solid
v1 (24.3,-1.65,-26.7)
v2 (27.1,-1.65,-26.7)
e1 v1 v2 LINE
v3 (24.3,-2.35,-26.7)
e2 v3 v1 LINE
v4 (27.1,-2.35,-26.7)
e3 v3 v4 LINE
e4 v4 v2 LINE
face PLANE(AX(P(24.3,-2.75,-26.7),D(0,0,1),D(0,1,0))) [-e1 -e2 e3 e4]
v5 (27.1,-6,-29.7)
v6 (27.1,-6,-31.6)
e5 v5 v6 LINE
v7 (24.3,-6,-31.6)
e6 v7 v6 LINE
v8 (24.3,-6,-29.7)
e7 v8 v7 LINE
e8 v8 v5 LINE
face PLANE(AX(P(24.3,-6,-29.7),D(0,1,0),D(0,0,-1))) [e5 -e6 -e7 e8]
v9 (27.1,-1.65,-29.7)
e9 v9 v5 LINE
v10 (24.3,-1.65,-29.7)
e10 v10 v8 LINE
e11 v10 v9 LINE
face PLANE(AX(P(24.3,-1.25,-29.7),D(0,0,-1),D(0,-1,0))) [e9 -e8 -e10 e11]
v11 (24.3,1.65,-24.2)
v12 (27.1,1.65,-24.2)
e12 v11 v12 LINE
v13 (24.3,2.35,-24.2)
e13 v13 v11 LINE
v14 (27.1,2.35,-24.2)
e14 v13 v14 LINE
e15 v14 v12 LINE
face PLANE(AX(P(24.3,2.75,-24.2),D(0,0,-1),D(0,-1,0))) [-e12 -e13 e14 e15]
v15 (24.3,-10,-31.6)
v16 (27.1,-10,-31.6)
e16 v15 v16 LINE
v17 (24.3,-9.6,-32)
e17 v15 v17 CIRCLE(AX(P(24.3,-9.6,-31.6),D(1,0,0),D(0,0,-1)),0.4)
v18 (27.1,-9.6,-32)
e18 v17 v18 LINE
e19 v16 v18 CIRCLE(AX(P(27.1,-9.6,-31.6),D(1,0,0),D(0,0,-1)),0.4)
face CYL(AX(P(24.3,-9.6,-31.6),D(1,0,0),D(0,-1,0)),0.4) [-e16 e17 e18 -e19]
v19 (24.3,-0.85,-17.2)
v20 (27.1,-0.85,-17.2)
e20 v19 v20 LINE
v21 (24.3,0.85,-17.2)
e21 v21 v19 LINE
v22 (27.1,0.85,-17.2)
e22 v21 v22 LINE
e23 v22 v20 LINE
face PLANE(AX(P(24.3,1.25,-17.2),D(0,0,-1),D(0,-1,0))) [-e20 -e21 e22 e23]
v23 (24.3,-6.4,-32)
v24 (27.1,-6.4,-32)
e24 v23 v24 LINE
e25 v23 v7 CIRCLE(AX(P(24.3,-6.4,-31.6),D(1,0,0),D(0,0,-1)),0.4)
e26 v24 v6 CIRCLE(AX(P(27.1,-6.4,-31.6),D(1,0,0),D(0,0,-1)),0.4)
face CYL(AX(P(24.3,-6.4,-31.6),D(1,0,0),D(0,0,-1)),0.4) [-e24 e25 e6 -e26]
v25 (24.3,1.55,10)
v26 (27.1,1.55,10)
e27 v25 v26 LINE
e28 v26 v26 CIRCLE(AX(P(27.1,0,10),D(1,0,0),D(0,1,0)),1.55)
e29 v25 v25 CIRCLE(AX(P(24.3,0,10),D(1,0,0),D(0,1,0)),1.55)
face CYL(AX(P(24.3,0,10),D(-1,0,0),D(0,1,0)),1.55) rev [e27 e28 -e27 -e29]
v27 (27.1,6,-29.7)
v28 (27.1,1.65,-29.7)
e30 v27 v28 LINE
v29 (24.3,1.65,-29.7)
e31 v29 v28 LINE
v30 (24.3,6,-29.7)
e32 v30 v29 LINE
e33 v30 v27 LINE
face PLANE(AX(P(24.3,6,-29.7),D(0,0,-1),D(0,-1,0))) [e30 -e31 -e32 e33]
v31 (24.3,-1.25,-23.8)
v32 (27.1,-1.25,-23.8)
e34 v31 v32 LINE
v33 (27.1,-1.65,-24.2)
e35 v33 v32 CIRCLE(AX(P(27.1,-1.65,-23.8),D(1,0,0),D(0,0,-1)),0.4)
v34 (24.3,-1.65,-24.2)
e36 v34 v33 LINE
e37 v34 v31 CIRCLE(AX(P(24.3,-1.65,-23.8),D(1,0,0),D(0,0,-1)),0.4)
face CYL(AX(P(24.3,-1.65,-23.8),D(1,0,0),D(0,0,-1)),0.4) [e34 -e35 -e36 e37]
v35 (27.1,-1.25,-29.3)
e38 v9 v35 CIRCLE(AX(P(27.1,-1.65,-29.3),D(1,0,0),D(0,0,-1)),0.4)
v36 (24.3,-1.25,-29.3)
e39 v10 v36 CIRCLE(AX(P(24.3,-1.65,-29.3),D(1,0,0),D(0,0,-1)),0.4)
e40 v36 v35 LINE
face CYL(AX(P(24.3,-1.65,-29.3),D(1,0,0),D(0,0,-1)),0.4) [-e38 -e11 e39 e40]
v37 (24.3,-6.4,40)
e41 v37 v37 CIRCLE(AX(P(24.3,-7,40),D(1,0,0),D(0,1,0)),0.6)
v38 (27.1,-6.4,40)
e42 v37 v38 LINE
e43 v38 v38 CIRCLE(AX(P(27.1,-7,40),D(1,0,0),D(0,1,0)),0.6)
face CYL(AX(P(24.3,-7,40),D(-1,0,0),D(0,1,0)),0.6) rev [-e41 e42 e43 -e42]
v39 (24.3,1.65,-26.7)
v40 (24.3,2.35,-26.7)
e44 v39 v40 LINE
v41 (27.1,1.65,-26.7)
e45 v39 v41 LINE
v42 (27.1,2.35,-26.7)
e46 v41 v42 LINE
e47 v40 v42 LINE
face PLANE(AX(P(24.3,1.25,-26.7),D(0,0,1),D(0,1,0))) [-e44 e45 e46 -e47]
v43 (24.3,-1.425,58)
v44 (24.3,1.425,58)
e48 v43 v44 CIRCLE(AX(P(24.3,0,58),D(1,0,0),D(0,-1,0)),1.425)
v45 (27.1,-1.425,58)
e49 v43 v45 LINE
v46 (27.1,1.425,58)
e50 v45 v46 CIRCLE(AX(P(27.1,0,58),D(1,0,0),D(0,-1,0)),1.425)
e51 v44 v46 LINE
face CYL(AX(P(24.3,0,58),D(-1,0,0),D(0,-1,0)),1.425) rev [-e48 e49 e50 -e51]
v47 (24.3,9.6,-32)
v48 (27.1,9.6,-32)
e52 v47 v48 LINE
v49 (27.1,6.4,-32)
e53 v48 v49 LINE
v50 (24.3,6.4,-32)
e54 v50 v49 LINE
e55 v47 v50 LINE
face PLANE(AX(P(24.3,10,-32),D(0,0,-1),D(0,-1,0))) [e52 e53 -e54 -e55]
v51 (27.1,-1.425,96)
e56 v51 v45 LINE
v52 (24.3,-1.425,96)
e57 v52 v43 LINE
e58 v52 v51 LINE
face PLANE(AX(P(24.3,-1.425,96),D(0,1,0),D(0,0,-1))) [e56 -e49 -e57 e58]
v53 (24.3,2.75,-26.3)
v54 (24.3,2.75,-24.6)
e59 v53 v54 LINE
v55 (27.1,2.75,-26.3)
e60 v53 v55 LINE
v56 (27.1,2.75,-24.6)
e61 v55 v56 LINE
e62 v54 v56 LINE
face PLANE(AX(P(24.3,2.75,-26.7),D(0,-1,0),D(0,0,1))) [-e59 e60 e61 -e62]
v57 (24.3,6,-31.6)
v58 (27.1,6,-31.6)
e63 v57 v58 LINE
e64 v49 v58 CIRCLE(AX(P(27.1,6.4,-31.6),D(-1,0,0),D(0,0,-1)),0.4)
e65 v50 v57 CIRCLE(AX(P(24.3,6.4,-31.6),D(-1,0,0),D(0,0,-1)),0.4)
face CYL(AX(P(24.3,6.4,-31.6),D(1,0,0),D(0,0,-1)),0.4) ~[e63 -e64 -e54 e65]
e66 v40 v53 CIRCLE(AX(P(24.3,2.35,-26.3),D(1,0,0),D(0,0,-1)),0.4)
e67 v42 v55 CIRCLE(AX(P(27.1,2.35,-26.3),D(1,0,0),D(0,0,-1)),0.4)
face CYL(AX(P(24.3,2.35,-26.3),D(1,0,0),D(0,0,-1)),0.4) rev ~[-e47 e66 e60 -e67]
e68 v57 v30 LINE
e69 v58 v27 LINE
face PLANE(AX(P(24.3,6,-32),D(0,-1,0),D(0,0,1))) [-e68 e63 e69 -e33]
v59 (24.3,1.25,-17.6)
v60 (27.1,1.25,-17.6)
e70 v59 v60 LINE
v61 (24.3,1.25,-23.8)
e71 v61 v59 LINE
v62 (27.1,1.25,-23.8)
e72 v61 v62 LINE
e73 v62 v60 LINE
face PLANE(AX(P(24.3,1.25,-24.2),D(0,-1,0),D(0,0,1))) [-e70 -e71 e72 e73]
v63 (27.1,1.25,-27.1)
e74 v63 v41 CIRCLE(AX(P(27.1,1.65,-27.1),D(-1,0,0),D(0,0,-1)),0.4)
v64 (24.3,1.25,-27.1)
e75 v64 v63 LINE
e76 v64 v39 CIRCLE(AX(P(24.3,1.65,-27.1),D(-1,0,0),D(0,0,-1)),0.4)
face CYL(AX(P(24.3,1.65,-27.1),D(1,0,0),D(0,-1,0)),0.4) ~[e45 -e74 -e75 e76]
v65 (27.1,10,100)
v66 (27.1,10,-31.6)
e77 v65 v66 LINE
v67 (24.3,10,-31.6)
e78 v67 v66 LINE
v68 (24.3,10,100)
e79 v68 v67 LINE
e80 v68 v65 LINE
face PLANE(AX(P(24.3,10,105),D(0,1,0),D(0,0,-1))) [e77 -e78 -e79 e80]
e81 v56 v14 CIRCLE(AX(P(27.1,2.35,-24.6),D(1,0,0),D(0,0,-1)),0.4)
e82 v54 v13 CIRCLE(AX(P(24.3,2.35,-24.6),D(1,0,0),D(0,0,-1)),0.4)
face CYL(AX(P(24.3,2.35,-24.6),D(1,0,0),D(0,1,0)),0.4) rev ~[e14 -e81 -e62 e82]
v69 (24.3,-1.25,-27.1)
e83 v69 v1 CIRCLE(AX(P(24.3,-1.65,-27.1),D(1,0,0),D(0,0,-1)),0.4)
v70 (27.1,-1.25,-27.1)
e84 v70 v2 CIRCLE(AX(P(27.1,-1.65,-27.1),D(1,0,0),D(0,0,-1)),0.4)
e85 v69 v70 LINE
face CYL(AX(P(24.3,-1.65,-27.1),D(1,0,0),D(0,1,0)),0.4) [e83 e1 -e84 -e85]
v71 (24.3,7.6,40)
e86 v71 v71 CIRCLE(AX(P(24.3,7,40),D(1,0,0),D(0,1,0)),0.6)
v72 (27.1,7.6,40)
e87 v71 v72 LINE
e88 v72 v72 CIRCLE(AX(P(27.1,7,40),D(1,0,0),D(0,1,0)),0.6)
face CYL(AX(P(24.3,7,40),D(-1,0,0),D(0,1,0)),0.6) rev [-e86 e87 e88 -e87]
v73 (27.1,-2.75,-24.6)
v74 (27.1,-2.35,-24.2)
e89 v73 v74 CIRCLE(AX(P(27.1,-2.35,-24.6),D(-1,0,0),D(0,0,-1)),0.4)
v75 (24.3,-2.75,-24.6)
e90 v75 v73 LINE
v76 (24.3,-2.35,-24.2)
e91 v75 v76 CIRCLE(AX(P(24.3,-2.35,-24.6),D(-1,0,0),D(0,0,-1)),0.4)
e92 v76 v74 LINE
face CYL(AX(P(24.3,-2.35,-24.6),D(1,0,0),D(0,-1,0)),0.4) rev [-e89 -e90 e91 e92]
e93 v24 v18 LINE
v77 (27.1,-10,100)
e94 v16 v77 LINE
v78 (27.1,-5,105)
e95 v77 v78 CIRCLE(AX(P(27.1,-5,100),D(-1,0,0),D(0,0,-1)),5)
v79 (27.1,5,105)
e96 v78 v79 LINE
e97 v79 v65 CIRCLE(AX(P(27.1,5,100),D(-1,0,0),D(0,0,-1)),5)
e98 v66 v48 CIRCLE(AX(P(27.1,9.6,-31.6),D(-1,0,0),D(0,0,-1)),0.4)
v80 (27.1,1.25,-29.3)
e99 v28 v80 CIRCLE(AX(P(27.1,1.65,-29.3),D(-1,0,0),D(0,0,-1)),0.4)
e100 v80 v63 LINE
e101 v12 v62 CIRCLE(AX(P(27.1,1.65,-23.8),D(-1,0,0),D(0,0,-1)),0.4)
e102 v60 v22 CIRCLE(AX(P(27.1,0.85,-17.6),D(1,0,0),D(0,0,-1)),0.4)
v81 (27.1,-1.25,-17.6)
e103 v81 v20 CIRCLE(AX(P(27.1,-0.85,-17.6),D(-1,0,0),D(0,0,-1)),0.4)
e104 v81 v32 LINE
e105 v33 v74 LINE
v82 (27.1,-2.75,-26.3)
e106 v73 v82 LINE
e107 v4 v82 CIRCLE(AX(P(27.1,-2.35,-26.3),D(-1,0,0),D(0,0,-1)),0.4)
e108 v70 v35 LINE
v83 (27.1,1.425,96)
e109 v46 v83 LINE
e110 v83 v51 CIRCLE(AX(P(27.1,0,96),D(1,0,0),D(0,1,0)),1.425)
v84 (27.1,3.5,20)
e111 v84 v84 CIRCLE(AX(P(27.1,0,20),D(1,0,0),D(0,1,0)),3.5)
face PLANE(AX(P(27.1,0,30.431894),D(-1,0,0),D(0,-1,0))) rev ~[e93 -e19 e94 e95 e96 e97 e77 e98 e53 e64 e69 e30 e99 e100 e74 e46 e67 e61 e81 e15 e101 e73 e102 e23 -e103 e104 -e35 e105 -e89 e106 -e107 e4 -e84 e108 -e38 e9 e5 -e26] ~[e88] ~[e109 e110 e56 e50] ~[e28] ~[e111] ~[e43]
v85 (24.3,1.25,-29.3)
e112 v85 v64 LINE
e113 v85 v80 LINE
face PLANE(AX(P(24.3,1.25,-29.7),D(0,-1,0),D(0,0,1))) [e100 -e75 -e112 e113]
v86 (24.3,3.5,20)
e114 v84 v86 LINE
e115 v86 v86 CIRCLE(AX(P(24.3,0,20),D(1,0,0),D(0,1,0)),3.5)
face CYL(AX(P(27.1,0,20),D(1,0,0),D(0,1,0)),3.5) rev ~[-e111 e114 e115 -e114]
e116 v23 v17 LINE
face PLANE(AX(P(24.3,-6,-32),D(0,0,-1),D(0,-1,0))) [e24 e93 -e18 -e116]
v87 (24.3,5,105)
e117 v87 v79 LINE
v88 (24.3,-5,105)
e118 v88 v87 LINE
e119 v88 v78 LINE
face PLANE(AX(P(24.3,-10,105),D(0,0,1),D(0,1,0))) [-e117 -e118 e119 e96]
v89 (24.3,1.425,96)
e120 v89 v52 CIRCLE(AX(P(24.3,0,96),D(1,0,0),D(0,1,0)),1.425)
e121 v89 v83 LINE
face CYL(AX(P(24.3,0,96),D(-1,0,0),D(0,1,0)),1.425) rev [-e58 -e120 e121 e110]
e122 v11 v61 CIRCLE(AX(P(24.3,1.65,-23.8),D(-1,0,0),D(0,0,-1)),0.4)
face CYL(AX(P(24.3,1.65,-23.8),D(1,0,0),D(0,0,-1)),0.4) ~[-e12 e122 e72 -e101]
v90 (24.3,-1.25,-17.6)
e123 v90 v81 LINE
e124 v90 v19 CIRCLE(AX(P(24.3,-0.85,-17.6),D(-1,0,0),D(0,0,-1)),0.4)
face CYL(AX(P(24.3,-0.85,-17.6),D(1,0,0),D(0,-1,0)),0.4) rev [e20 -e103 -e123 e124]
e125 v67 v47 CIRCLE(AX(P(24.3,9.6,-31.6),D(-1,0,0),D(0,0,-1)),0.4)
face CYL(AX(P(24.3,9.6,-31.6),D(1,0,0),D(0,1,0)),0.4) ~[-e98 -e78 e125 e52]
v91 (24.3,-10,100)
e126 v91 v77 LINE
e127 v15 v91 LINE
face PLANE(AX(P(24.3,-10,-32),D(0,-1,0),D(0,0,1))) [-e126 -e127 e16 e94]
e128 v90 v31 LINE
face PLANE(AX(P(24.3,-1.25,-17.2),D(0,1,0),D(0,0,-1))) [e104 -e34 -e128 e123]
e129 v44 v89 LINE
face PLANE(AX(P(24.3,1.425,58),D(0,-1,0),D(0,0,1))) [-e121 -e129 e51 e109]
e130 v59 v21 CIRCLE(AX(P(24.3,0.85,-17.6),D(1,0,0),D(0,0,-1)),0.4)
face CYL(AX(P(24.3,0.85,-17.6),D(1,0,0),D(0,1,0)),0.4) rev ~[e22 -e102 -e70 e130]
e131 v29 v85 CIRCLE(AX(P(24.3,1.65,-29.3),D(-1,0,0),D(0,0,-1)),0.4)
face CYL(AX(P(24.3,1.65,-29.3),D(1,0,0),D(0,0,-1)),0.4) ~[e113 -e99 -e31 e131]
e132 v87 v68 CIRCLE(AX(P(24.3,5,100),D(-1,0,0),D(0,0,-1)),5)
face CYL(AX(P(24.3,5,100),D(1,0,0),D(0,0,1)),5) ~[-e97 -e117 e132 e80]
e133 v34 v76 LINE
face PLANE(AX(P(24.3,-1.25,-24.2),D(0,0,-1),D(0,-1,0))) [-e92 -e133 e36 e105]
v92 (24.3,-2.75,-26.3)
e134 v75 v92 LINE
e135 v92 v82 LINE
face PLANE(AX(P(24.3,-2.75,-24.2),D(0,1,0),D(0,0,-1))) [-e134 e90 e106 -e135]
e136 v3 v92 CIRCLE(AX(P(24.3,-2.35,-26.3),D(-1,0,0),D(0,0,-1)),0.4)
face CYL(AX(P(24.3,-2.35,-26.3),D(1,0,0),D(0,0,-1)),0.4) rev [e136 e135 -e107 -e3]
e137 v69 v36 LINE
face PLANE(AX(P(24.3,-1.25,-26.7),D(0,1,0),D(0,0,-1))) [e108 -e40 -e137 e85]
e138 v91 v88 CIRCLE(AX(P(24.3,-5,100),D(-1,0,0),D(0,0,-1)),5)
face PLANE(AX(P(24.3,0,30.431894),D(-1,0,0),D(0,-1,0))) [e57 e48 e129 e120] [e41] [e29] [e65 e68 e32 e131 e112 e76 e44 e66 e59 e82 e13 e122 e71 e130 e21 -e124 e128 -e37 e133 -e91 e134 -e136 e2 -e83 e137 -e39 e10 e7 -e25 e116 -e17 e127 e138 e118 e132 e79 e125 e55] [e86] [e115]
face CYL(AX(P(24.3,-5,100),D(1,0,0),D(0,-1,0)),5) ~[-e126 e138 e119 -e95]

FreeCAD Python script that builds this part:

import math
import FreeCAD as App
import Part
import Sketcher
from FreeCAD import Vector
Q = App.Units.Quantity


def edges_at(feature, points):
    """Names of the edges that pass closest to the given points."""
    edges = feature.Shape.Edges
    near = lambda p: min(range(len(edges)), key=lambda i: edges[i].distToShape(Part.Vertex(*p))[0])
    return sorted({f"Edge{near(p) + 1}" for p in points})

doc = App.newDocument("Part")
body = doc.addObject("PartDesign::Body", "Body")

sketch1 = doc.addObject("Sketcher::SketchObject", "Sketch")
body.addObject(sketch1)
sketch1.AttachmentSupport = (doc.YZ_Plane, [""])
sketch1.MapMode = "FlatFace"
sketch1.AttachmentOffset = App.Placement(Vector(0, 0, -24.3), App.Rotation())
sketch1.addGeometry([
    Part.LineSegment(Vector(-10, 85, 0), Vector(10, 85, 0)),
    Part.LineSegment(Vector(10, 85, 0), Vector(10, -52, 0)),
    Part.LineSegment(Vector(10, -52, 0), Vector(6, -52, 0)),
    Part.LineSegment(Vector(6, -52, 0), Vector(6, -49.7, 0)),
    Part.LineSegment(Vector(6, -49.7, 0), Vector(1.2, -49.7, 0)),
    Part.LineSegment(Vector(1.2, -49.7, 0), Vector(1.2, -46.7, 0)),
    Part.LineSegment(Vector(1.2, -46.7, 0), Vector(2.8, -46.7, 0)),
    Part.LineSegment(Vector(2.8, -46.7, 0), Vector(2.8, -44.2, 0)),
    Part.LineSegment(Vector(2.8, -44.2, 0), Vector(1.2, -44.2, 0)),
    Part.LineSegment(Vector(1.2, -44.2, 0), Vector(1.2, -37.2, 0)),
    Part.LineSegment(Vector(1.2, -37.2, 0), Vector(-1.2, -37.2, 0)),
    Part.LineSegment(Vector(-1.2, -37.2, 0), Vector(-1.2, -44.2, 0)),
    Part.LineSegment(Vector(-1.2, -44.2, 0), Vector(-2.8, -44.2, 0)),
    Part.LineSegment(Vector(-2.8, -44.2, 0), Vector(-2.8, -46.7, 0)),
    Part.LineSegment(Vector(-2.8, -46.7, 0), Vector(-1.2, -46.7, 0)),
    Part.LineSegment(Vector(-1.2, -46.7, 0), Vector(-1.2, -49.7, 0)),
    Part.LineSegment(Vector(-1.2, -49.7, 0), Vector(-6, -49.7, 0)),
    Part.LineSegment(Vector(-6, -49.7, 0), Vector(-6, -52, 0)),
    Part.LineSegment(Vector(-6, -52, 0), Vector(-10, -52, 0)),
    Part.LineSegment(Vector(-10, -52, 0), Vector(-10, 85, 0)),
    Part.Circle(Vector(0, -10, 0), Vector(0, 0, 1), 1.6),
    Part.Circle(Vector(-7, 20, 0), Vector(0, 0, 1), 0.6),
    Part.Circle(Vector(7, 20, 0), Vector(0, 0, 1), 0.6),
    Part.LineSegment(Vector(-1.4, 76, 0), Vector(-1.4, 38, 0)),
    Part.ArcOfCircle(Part.Circle(Vector(0, 38, 0), Vector(0, 0, 1), 1.4), math.radians(180), math.radians(360)),
    Part.LineSegment(Vector(1.4, 38, 0), Vector(1.4, 76, 0)),
    Part.ArcOfCircle(Part.Circle(Vector(0, 76, 0), Vector(0, 0, 1), 1.4), math.radians(0), math.radians(180)),
], False)
sketch1.addConstraint([
    Sketcher.Constraint("Coincident", 0, 2, 1, 1),
    Sketcher.Constraint("Coincident", 1, 2, 2, 1),
    Sketcher.Constraint("Coincident", 2, 2, 3, 1),
    Sketcher.Constraint("Coincident", 3, 2, 4, 1),
    Sketcher.Constraint("Coincident", 4, 2, 5, 1),
    Sketcher.Constraint("Coincident", 5, 2, 6, 1),
    Sketcher.Constraint("Coincident", 6, 2, 7, 1),
    Sketcher.Constraint("Coincident", 7, 2, 8, 1),
    Sketcher.Constraint("Coincident", 8, 2, 9, 1),
    Sketcher.Constraint("Coincident", 9, 2, 10, 1),
    Sketcher.Constraint("Coincident", 10, 2, 11, 1),
    Sketcher.Constraint("Coincident", 11, 2, 12, 1),
    Sketcher.Constraint("Coincident", 12, 2, 13, 1),
    Sketcher.Constraint("Coincident", 13, 2, 14, 1),
    Sketcher.Constraint("Coincident", 14, 2, 15, 1),
    Sketcher.Constraint("Coincident", 15, 2, 16, 1),
    Sketcher.Constraint("Coincident", 16, 2, 17, 1),
    Sketcher.Constraint("Coincident", 17, 2, 18, 1),
    Sketcher.Constraint("Coincident", 18, 2, 19, 1),
    Sketcher.Constraint("Coincident", 19, 2, 0, 1),
    Sketcher.Constraint("Tangent", 23, 2, 24, 1),
    Sketcher.Constraint("Tangent", 24, 2, 25, 1),
    Sketcher.Constraint("Tangent", 25, 2, 26, 1),
    Sketcher.Constraint("Tangent", 26, 2, 23, 1),
    Sketcher.Constraint("Horizontal", 0),
    Sketcher.Constraint("Vertical", 1),
    Sketcher.Constraint("Horizontal", 2),
    Sketcher.Constraint("Vertical", 3),
    Sketcher.Constraint("Horizontal", 4),
    Sketcher.Constraint("Vertical", 5),
    Sketcher.Constraint("Horizontal", 6),
    Sketcher.Constraint("Vertical", 7),
    Sketcher.Constraint("Horizontal", 8),
    Sketcher.Constraint("Vertical", 9),
    Sketcher.Constraint("Horizontal", 10),
    Sketcher.Constraint("Vertical", 11),
    Sketcher.Constraint("Horizontal", 12),
    Sketcher.Constraint("Vertical", 13),
    Sketcher.Constraint("Horizontal", 14),
    Sketcher.Constraint("Vertical", 15),
    Sketcher.Constraint("Horizontal", 16),
    Sketcher.Constraint("Vertical", 17),
    Sketcher.Constraint("Horizontal", 18),
    Sketcher.Constraint("Vertical", 19),
    Sketcher.Constraint("Vertical", 23),
    Sketcher.Constraint("Vertical", 25),
    Sketcher.Constraint("Equal", 21, 22),
    Sketcher.Constraint("Symmetric", 21, 3, 22, 3, -2),
    Sketcher.Constraint("Symmetric", 8, 2, 11, 2, -2),
    Sketcher.Constraint("Symmetric", 6, 2, 13, 2, -2),
    Sketcher.Constraint("Symmetric", 4, 2, 15, 2, -2),
    Sketcher.Constraint("Symmetric", 2, 2, 17, 2, -2),
    Sketcher.Constraint("PointOnObject", 20, 3, -2),
    Sketcher.Constraint("PointOnObject", 24, 3, -2),
    Sketcher.Constraint("Vertical", 5, 2, 8, 2),
    Sketcher.Constraint("Equal", 2, 18),
    Sketcher.Constraint("Equal", 10, 7),
    Sketcher.Constraint("Diameter", 20, Q("3.1 mm")),
    Sketcher.Constraint("Diameter", 21, Q("1.2 mm")),
    Sketcher.Constraint("DistanceX", 0, 1, 0, 2, Q("20 mm")),
    Sketcher.Constraint("DistanceX", 2, 2, 2, 1, Q("4 mm")),
    Sketcher.Constraint("DistanceY", 1, 2, 1, 1, Q("137 mm")),
    Sketcher.Constraint("DistanceY", 5, 1, 5, 2, Q("3 mm")),
    Sketcher.Constraint("DistanceY", 9, 1, 9, 2, Q("7 mm")),
    Sketcher.Constraint("DistanceY", 23, 2, 23, 1, Q("38 mm")),
    Sketcher.Constraint("DistanceX", 6, 1, 6, 2, Q("1.5 mm")),
    Sketcher.Constraint("DistanceX", 10, 2, 10, 1, Q("2.5 mm")),
    Sketcher.Constraint("DistanceY", 3, 1, 3, 2, Q("2.3 mm")),
    Sketcher.Constraint("DistanceY", 20, 3, -1, 1, Q("10 mm")),
    Sketcher.Constraint("DistanceX", 21, 3, -1, 1, Q("7 mm")),
    Sketcher.Constraint("DistanceY", -1, 1, 21, 3, Q("20 mm")),
    Sketcher.Constraint("DistanceY", -1, 1, 24, 3, Q("38 mm")),
    Sketcher.Constraint("DistanceY", -1, 1, 0, 2, Q("85 mm")),
    Sketcher.Constraint("Radius", 24, Q("1.425 mm")),
])
pad1 = doc.addObject("PartDesign::Pad", "Pad")
body.addObject(pad1)
pad1.Profile = sketch1
pad1.Length = 2.8
pad1.Reversed = True
doc.recompute()

fillet = doc.addObject("PartDesign::Fillet", "Fillet")
body.addObject(fillet)
fillet.Base = (pad1, edges_at(pad1, [
    (-25.7, 10, -52),
    (-25.7, 6, -52),
    (-25.7, -10, -52),
    (-25.7, -6, -52),
    (-25.7, 1.25, -49.7),
    (-25.7, -1.25, -49.7),
    (-25.7, 1.25, -37.2),
    (-25.7, -1.25, -37.2),
    (-25.7, 1.25, -46.7),
    (-25.7, -1.25, -46.7),
    (-25.7, 1.25, -44.2),
    (-25.7, -1.25, -44.2),
    (-25.7, -2.75, -46.7),
    (-25.7, 2.75, -46.7),
    (-25.7, 2.75, -44.2),
    (-25.7, -2.75, -44.2),
]))
fillet.Radius = 0.4
doc.recompute()

fillet2 = doc.addObject("PartDesign::Fillet", "Fillet001")
body.addObject(fillet2)
fillet2.Base = (fillet, edges_at(fillet, [(-25.7, 10, 85), (-25.7, -10, 85)]))
fillet2.Radius = 5

sketch2 = doc.addObject("Sketcher::SketchObject", "Sketch001")
body.addObject(sketch2)
sketch2.AttachmentSupport = (doc.YZ_Plane, [""])
sketch2.MapMode = "FlatFace"
sketch2.AttachmentOffset = App.Placement(Vector(0, 0, -27.1), App.Rotation())
sketch2.addGeometry(Part.Circle(Vector(0, 0, 0), Vector(0, 0, 1), 3.5), False)
sketch2.addConstraint([
    Sketcher.Constraint("Coincident", 0, 3, -1, 1),
    Sketcher.Constraint("Diameter", 0, Q("7 mm")),
])
pocket1 = doc.addObject("PartDesign::Pocket", "Pocket")
body.addObject(pocket1)
pocket1.Profile = sketch2
pocket1.Type = "ThroughAll"
pocket1.Reversed = True
body2 = doc.addObject("PartDesign::Body", "Body001")
doc.recompute()

body.Placement = App.Placement(Vector(0, 0, 20), App.Rotation(Vector(0, 0, 1), 180))
boolean = doc.addObject("PartDesign::Boolean", "Boolean")
body2.addObject(boolean)
boolean.Type = "Fuse"
boolean.addObjects([body])

doc.recompute()
